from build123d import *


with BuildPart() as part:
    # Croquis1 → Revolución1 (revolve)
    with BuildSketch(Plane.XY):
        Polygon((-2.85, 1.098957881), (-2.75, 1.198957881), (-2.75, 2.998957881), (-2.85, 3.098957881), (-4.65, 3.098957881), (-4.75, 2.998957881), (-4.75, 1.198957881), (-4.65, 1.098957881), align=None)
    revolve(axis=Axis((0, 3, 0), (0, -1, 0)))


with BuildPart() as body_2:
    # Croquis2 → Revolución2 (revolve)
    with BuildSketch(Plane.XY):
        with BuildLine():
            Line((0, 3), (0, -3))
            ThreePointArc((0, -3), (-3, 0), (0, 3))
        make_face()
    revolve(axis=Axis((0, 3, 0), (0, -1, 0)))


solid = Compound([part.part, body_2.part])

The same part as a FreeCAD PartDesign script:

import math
import FreeCAD as App
import Part
import Sketcher

V = App.Vector
Q = App.Units.Quantity

doc = App.newDocument("Part")
body = doc.addObject("PartDesign::Body", "Body")

sketch1 = body.newObject("Sketcher::SketchObject", "Sketch")
sketch1.AttachmentSupport = (doc.getObject("XY_Plane"), [""])
sketch1.MapMode = "FlatFace"
sketch1.addGeometry(Part.LineSegment(V(-2.85, 1.098958, 0), V(-2.75, 1.198958, 0)), False)
sketch1.addGeometry(Part.LineSegment(V(-2.75, 1.198958, 0), V(-2.75, 2.998958, 0)), False)
sketch1.addGeometry(Part.LineSegment(V(-2.75, 2.998958, 0), V(-2.85, 3.098958, 0)), False)
sketch1.addGeometry(Part.LineSegment(V(-2.85, 3.098958, 0), V(-4.65, 3.098958, 0)), False)
sketch1.addGeometry(Part.LineSegment(V(-4.65, 3.098958, 0), V(-4.75, 2.998958, 0)), False)
sketch1.addGeometry(Part.LineSegment(V(-4.75, 2.998958, 0), V(-4.75, 1.198958, 0)), False)
sketch1.addGeometry(Part.LineSegment(V(-4.75, 1.198958, 0), V(-4.65, 1.098958, 0)), False)
sketch1.addGeometry(Part.LineSegment(V(-4.65, 1.098958, 0), V(-2.85, 1.098958, 0)), False)
sketch1.addConstraint(Sketcher.Constraint("Coincident", 0, 2, 1, 1))
sketch1.addConstraint(Sketcher.Constraint("Coincident", 1, 2, 2, 1))
sketch1.addConstraint(Sketcher.Constraint("Coincident", 2, 2, 3, 1))
sketch1.addConstraint(Sketcher.Constraint("Coincident", 3, 2, 4, 1))
sketch1.addConstraint(Sketcher.Constraint("Coincident", 4, 2, 5, 1))
sketch1.addConstraint(Sketcher.Constraint("Coincident", 5, 2, 6, 1))
sketch1.addConstraint(Sketcher.Constraint("Coincident", 6, 2, 7, 1))
sketch1.addConstraint(Sketcher.Constraint("Coincident", 7, 2, 0, 1))
sketch1.addConstraint(Sketcher.Constraint("Vertical", 1))
sketch1.addConstraint(Sketcher.Constraint("Horizontal", 3))
sketch1.addConstraint(Sketcher.Constraint("Vertical", 5))
sketch1.addConstraint(Sketcher.Constraint("Horizontal", 7))
sketch1.addConstraint(Sketcher.Constraint("Perpendicular", 0, 2))
sketch1.addConstraint(Sketcher.Constraint("Perpendicular", 2, 4))
sketch1.addConstraint(Sketcher.Constraint("Perpendicular", 4, 6))
sketch1.addConstraint(Sketcher.Constraint("Horizontal", 1, 2, 4, 2))
sketch1.addConstraint(Sketcher.Constraint("Horizontal", 0, 2, 5, 2))
sketch1.addConstraint(Sketcher.Constraint("Vertical", 3, 2, 6, 2))
sketch1.addConstraint(Sketcher.Constraint("Vertical", 2, 2, 7, 2))
sketch1.addConstraint(Sketcher.Constraint("Equal", 7, 1))
sketch1.addConstraint(Sketcher.Constraint("DistanceX", 3, 2, 3, 1, Q("1.8 mm")))
sketch1.addConstraint(Sketcher.Constraint("DistanceX", 4, 2, 1, 2, Q("2 mm")))
sketch1.addConstraint(Sketcher.Constraint("DistanceX", 0, 2, -1, 1, Q("2.75 mm")))
sketch1.addConstraint(Sketcher.Constraint("DistanceY", -1, 1, 0, 2, Q("1.198958 mm")))
revolution = body.newObject("PartDesign::Revolution", "Revolution")
revolution.Profile = sketch1
revolution.ReferenceAxis = (sketch1, ["V_Axis"])
revolution.Angle = 360
body2 = doc.addObject("PartDesign::Body", "Body001")

sketch2 = body2.newObject("Sketcher::SketchObject", "Sketch001")
sketch2.AttachmentSupport = (doc.getObject("XY_Plane001"), [""])
sketch2.MapMode = "FlatFace"
sketch2.addGeometry(Part.LineSegment(V(0, -3, 0), V(0, 3, 0)), False)
sketch2.addGeometry(Part.ArcOfCircle(Part.Circle(V(0, 0, 0), V(0, 0, 1), 3), math.radians(90), math.radians(270)), False)
sketch2.addConstraint(Sketcher.Constraint("Coincident", 0, 1, 1, 2))
sketch2.addConstraint(Sketcher.Constraint("Coincident", 1, 1, 0, 2))
sketch2.addConstraint(Sketcher.Constraint("Vertical", 0))
sketch2.addConstraint(Sketcher.Constraint("Coincident", 1, 3, -1, 1))
sketch2.addConstraint(Sketcher.Constraint("PointOnObject", 0, 1, -2))
sketch2.addConstraint(Sketcher.Constraint("Radius", 1, Q("3 mm")))
revolution2 = body2.newObject("PartDesign::Revolution", "Revolution001")
revolution2.Profile = sketch2
revolution2.ReferenceAxis = (sketch2, ["V_Axis"])
revolution2.Angle = 360

doc.recompute()
